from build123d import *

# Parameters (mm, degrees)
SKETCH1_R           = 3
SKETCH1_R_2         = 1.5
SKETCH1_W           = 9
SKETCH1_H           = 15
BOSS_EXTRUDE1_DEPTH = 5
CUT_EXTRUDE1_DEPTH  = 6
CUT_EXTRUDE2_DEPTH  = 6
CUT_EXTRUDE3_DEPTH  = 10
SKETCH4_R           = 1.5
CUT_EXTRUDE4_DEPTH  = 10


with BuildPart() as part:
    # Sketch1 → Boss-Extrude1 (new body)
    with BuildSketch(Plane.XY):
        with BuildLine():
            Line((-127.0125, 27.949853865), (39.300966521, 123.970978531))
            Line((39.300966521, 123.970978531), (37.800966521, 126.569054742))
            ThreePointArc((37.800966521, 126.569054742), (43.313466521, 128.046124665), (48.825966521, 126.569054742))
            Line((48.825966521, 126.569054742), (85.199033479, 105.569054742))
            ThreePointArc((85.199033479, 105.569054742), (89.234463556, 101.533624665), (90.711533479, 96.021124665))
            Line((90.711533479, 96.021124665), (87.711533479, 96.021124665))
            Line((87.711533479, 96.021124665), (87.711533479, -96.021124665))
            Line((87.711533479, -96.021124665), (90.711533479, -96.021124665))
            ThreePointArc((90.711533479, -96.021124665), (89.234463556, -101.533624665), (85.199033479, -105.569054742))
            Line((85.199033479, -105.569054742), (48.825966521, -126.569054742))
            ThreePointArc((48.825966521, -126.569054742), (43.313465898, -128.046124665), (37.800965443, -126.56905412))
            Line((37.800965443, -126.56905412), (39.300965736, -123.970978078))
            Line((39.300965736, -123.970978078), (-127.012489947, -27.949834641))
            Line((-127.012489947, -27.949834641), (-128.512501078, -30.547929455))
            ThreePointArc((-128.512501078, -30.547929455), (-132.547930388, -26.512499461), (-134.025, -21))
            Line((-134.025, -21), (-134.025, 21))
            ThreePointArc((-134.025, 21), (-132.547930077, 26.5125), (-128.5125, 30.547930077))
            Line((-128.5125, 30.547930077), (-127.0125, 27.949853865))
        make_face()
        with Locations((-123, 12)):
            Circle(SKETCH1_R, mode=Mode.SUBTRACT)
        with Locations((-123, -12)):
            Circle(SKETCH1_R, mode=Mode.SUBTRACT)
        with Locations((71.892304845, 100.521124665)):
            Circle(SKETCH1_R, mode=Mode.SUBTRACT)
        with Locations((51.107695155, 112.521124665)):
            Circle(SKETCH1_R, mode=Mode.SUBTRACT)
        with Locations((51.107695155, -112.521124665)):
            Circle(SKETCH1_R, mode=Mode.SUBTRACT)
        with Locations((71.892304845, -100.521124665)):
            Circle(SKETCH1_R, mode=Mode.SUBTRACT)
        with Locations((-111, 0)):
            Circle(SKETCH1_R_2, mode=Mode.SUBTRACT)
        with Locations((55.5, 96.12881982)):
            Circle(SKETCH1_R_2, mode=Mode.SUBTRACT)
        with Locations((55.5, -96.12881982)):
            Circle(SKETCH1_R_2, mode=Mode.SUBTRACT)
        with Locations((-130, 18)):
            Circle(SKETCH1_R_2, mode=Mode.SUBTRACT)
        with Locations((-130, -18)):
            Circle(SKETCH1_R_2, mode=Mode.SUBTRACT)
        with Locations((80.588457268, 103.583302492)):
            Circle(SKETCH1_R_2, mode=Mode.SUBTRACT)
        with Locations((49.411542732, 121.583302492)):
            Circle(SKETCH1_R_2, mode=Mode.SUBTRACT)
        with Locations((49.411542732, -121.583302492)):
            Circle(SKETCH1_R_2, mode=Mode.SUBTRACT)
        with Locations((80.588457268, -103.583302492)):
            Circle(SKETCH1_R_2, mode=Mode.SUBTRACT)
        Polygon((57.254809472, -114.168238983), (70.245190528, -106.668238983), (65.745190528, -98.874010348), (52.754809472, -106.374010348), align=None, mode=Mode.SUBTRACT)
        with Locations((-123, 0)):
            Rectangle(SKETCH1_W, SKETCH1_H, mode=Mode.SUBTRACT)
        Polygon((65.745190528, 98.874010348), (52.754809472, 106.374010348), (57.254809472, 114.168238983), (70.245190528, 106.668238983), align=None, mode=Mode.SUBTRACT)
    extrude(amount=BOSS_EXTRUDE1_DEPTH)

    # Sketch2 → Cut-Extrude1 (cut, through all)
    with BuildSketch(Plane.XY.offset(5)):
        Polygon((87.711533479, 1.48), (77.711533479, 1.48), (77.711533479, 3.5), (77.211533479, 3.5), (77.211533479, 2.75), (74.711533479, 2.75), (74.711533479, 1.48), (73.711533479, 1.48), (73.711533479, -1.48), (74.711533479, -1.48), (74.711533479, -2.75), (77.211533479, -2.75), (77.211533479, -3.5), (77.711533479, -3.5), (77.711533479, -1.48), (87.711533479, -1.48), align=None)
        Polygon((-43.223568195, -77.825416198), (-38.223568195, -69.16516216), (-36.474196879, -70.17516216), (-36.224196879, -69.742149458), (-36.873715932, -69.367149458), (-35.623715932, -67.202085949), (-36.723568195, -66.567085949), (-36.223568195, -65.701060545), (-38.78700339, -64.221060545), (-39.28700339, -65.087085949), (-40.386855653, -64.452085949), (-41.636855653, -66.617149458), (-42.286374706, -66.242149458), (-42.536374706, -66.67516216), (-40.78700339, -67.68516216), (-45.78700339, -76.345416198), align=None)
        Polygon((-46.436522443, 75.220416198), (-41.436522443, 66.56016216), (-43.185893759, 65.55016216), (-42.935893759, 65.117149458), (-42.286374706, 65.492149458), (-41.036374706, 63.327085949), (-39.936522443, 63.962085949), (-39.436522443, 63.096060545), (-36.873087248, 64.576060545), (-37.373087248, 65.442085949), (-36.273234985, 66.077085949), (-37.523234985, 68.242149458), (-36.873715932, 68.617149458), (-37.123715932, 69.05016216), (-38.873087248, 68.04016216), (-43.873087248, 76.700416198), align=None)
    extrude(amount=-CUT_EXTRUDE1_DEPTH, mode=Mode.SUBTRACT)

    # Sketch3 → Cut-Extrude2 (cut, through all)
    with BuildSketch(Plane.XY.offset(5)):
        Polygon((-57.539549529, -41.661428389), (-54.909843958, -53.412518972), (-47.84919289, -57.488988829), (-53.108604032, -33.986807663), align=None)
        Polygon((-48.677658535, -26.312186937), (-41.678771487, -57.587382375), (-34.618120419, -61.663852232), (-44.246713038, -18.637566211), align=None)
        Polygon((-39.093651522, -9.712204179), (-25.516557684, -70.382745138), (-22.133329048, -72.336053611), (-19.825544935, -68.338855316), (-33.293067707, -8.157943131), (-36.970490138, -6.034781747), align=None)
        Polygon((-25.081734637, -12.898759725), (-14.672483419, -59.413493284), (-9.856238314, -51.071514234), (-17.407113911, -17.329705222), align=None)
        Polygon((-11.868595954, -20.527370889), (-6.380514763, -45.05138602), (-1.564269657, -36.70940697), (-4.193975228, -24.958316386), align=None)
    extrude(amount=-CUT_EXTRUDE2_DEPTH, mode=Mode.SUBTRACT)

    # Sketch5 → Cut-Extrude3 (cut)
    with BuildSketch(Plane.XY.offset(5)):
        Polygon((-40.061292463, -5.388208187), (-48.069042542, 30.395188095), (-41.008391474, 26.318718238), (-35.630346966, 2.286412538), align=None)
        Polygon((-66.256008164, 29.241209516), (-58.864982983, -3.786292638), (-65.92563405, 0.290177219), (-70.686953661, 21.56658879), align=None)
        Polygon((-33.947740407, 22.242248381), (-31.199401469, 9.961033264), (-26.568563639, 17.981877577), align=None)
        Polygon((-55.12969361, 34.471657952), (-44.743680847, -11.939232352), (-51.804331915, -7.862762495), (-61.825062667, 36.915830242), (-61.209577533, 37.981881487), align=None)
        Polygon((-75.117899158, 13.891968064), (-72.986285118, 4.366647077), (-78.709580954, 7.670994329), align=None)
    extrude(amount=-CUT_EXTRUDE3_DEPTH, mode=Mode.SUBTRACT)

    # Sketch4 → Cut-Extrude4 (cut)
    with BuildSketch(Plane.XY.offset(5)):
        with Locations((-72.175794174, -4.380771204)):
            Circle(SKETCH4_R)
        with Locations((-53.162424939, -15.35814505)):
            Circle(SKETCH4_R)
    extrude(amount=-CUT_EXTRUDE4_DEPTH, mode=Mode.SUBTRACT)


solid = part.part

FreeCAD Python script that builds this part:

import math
import FreeCAD as App
import Part
import Sketcher

V = App.Vector
Q = App.Units.Quantity

doc = App.newDocument("Part")
body = doc.addObject("PartDesign::Body", "Body")

sketch1 = body.newObject("Sketcher::SketchObject", "Sketch")
sketch1.AttachmentSupport = (doc.getObject("XY_Plane"), [""])
sketch1.MapMode = "FlatFace"
sketch1.addGeometry(Part.LineSegment(V(39.300967, 123.970979, 0), V(-127.0125, 27.949854, 0)), False)
sketch1.addGeometry(Part.LineSegment(V(-127.0125, 27.949854, 0), V(-128.5125, 30.54793, 0)), False)
sketch1.addGeometry(Part.ArcOfCircle(Part.Circle(V(-123, 21, 0), V(0, 0, 1), 11.025), math.radians(120), math.radians(180)), False)
sketch1.addGeometry(Part.LineSegment(V(-134.025, 21, 0), V(-134.025, -21, 0)), False)
sketch1.addGeometry(Part.ArcOfCircle(Part.Circle(V(-123, -21, 0), V(0, 0, 1), 11.025), math.radians(180), math.radians(239.999994)), False)
sketch1.addGeometry(Part.LineSegment(V(-128.512501, -30.547929, 0), V(-127.01249, -27.949835, 0)), False)
sketch1.addGeometry(Part.LineSegment(V(-127.01249, -27.949835, 0), V(39.300966, -123.970978, 0)), False)
sketch1.addGeometry(Part.LineSegment(V(39.300966, -123.970978, 0), V(37.800965, -126.569054, 0)), False)
sketch1.addGeometry(Part.ArcOfCircle(Part.Circle(V(43.313467, -117.021125, 0), V(0, 0, 1), 11.025), math.radians(-120.000006), math.radians(-60)), False)
sketch1.addGeometry(Part.LineSegment(V(48.825967, -126.569055, 0), V(85.199033, -105.569055, 0)), False)
sketch1.addGeometry(Part.ArcOfCircle(Part.Circle(V(79.686533, -96.021125, 0), V(0, 0, 1), 11.025), math.radians(-60), math.radians(0)), False)
sketch1.addGeometry(Part.LineSegment(V(90.711533, -96.021125, 0), V(87.711533, -96.021125, 0)), False)
sketch1.addGeometry(Part.LineSegment(V(87.711533, -96.021125, 0), V(87.711533, 96.021125, 0)), False)
sketch1.addGeometry(Part.LineSegment(V(87.711533, 96.021125, 0), V(90.711533, 96.021125, 0)), False)
sketch1.addGeometry(Part.ArcOfCircle(Part.Circle(V(79.686533, 96.021125, 0), V(0, 0, 1), 11.025), math.radians(0), math.radians(60)), False)
sketch1.addGeometry(Part.LineSegment(V(85.199033, 105.569055, 0), V(48.825967, 126.569055, 0)), False)
sketch1.addGeometry(Part.ArcOfCircle(Part.Circle(V(43.313467, 117.021125, 0), V(0, 0, 1), 11.025), math.radians(60), math.radians(120)), False)
sketch1.addGeometry(Part.LineSegment(V(37.800967, 126.569055, 0), V(39.300967, 123.970979, 0)), False)
sketch1.addGeometry(Part.Circle(V(80.588457, -103.583302, 0), V(0, 0, 1), 1.5), False)
sketch1.addGeometry(Part.Circle(V(71.892305, -100.521125, 0), V(0, 0, 1), 3), False)
sketch1.addGeometry(Part.LineSegment(V(57.254809, -114.168239, 0), V(52.754809, -106.37401, 0)), False)
sketch1.addGeometry(Part.LineSegment(V(52.754809, -106.37401, 0), V(65.745191, -98.87401, 0)), False)
sketch1.addGeometry(Part.LineSegment(V(65.745191, -98.87401, 0), V(70.245191, -106.668239, 0)), False)
sketch1.addGeometry(Part.LineSegment(V(70.245191, -106.668239, 0), V(57.254809, -114.168239, 0)), False)
sketch1.addGeometry(Part.Circle(V(55.5, -96.12882, 0), V(0, 0, 1), 1.5), False)
sketch1.addGeometry(Part.Circle(V(49.411543, -121.583302, 0), V(0, 0, 1), 1.5), False)
sketch1.addGeometry(Part.Circle(V(51.107695, -112.521125, 0), V(0, 0, 1), 3), False)
sketch1.addGeometry(Part.Circle(V(-130, -18, 0), V(0, 0, 1), 1.5), False)
sketch1.addGeometry(Part.Circle(V(-111, 0, 0), V(0, 0, 1), 1.5), False)
sketch1.addGeometry(Part.Circle(V(-123, -12, 0), V(0, 0, 1), 3), False)
sketch1.addGeometry(Part.LineSegment(V(-127.5, -7.5, 0), V(-127.5, 7.5, 0)), False)
sketch1.addGeometry(Part.LineSegment(V(-127.5, 7.5, 0), V(-118.5, 7.5, 0)), False)
sketch1.addGeometry(Part.LineSegment(V(-118.5, 7.5, 0), V(-118.5, -7.5, 0)), False)
sketch1.addGeometry(Part.LineSegment(V(-118.5, -7.5, 0), V(-127.5, -7.5, 0)), False)
sketch1.addGeometry(Part.Circle(V(80.588457, 103.583302, 0), V(0, 0, 1), 1.5), False)
sketch1.addGeometry(Part.Circle(V(71.892305, 100.521125, 0), V(0, 0, 1), 3), False)
sketch1.addGeometry(Part.Circle(V(55.5, 96.12882, 0), V(0, 0, 1), 1.5), False)
sketch1.addGeometry(Part.LineSegment(V(65.745191, 98.87401, 0), V(52.754809, 106.37401, 0)), False)
sketch1.addGeometry(Part.LineSegment(V(52.754809, 106.37401, 0), V(57.254809, 114.168239, 0)), False)
sketch1.addGeometry(Part.LineSegment(V(57.254809, 114.168239, 0), V(70.245191, 106.668239, 0)), False)
sketch1.addGeometry(Part.LineSegment(V(70.245191, 106.668239, 0), V(65.745191, 98.87401, 0)), False)
sketch1.addGeometry(Part.Circle(V(51.107695, 112.521125, 0), V(0, 0, 1), 3), False)
sketch1.addGeometry(Part.Circle(V(49.411543, 121.583302, 0), V(0, 0, 1), 1.5), False)
sketch1.addGeometry(Part.Circle(V(-123, 12, 0), V(0, 0, 1), 3), False)
sketch1.addGeometry(Part.Circle(V(-130, 18, 0), V(0, 0, 1), 1.5), False)
sketch1.addConstraint(Sketcher.Constraint("Coincident", 0, 2, 1, 1))
sketch1.addConstraint(Sketcher.Constraint("Coincident", 1, 2, 2, 1))
sketch1.addConstraint(Sketcher.Constraint("Coincident", 2, 2, 3, 1))
sketch1.addConstraint(Sketcher.Constraint("Coincident", 3, 2, 4, 1))
sketch1.addConstraint(Sketcher.Constraint("Coincident", 4, 2, 5, 1))
sketch1.addConstraint(Sketcher.Constraint("Coincident", 5, 2, 6, 1))
sketch1.addConstraint(Sketcher.Constraint("Coincident", 6, 2, 7, 1))
sketch1.addConstraint(Sketcher.Constraint("Coincident", 7, 2, 8, 1))
sketch1.addConstraint(Sketcher.Constraint("Coincident", 8, 2, 9, 1))
sketch1.addConstraint(Sketcher.Constraint("Coincident", 9, 2, 10, 1))
sketch1.addConstraint(Sketcher.Constraint("Coincident", 10, 2, 11, 1))
sketch1.addConstraint(Sketcher.Constraint("Coincident", 11, 2, 12, 1))
sketch1.addConstraint(Sketcher.Constraint("Coincident", 12, 2, 13, 1))
sketch1.addConstraint(Sketcher.Constraint("Coincident", 13, 2, 14, 1))
sketch1.addConstraint(Sketcher.Constraint("Coincident", 14, 2, 15, 1))
sketch1.addConstraint(Sketcher.Constraint("Coincident", 15, 2, 16, 1))
sketch1.addConstraint(Sketcher.Constraint("Coincident", 16, 2, 17, 1))
sketch1.addConstraint(Sketcher.Constraint("Coincident", 17, 2, 0, 1))
sketch1.addConstraint(Sketcher.Constraint("Coincident", 20, 2, 21, 1))
sketch1.addConstraint(Sketcher.Constraint("Coincident", 21, 2, 22, 1))
sketch1.addConstraint(Sketcher.Constraint("Coincident", 22, 2, 23, 1))
sketch1.addConstraint(Sketcher.Constraint("Coincident", 23, 2, 20, 1))
sketch1.addConstraint(Sketcher.Constraint("Coincident", 30, 2, 31, 1))
sketch1.addConstraint(Sketcher.Constraint("Coincident", 31, 2, 32, 1))
sketch1.addConstraint(Sketcher.Constraint("Coincident", 32, 2, 33, 1))
sketch1.addConstraint(Sketcher.Constraint("Coincident", 33, 2, 30, 1))
sketch1.addConstraint(Sketcher.Constraint("Coincident", 37, 2, 38, 1))
sketch1.addConstraint(Sketcher.Constraint("Coincident", 38, 2, 39, 1))
sketch1.addConstraint(Sketcher.Constraint("Coincident", 39, 2, 40, 1))
sketch1.addConstraint(Sketcher.Constraint("Coincident", 40, 2, 37, 1))
sketch1.addConstraint(Sketcher.Constraint("Vertical", 3))
sketch1.addConstraint(Sketcher.Constraint("Horizontal", 11))
sketch1.addConstraint(Sketcher.Constraint("Vertical", 12))
sketch1.addConstraint(Sketcher.Constraint("Horizontal", 13))
sketch1.addConstraint(Sketcher.Constraint("Vertical", 30))
sketch1.addConstraint(Sketcher.Constraint("Horizontal", 31))
sketch1.addConstraint(Sketcher.Constraint("Vertical", 32))
sketch1.addConstraint(Sketcher.Constraint("Horizontal", 33))
sketch1.addConstraint(Sketcher.Constraint("PointOnObject", 28, 3, -1))
sketch1.addConstraint(Sketcher.Constraint("Diameter", 18, 3.0))
sketch1.addConstraint(Sketcher.Constraint("Diameter", 19, 6.0))
sketch1.addConstraint(Sketcher.Constraint("Diameter", 24, 3.0))
sketch1.addConstraint(Sketcher.Constraint("Diameter", 25, 3.0))
sketch1.addConstraint(Sketcher.Constraint("Diameter", 26, 6.0))
sketch1.addConstraint(Sketcher.Constraint("Diameter", 27, 3.0))
sketch1.addConstraint(Sketcher.Constraint("Diameter", 28, 3.0))
sketch1.addConstraint(Sketcher.Constraint("Diameter", 29, 6.0))
sketch1.addConstraint(Sketcher.Constraint("Diameter", 34, 3.0))
sketch1.addConstraint(Sketcher.Constraint("Diameter", 35, 6.0))
sketch1.addConstraint(Sketcher.Constraint("Diameter", 36, 3.0))
sketch1.addConstraint(Sketcher.Constraint("Diameter", 41, 6.0))
sketch1.addConstraint(Sketcher.Constraint("Diameter", 42, 3.0))
sketch1.addConstraint(Sketcher.Constraint("Diameter", 43, 6.0))
sketch1.addConstraint(Sketcher.Constraint("Diameter", 44, 3.0))
sketch1.addConstraint(Sketcher.Constraint("DistanceX", 11, 2, 11, 1, 3.0))
sketch1.addConstraint(Sketcher.Constraint("DistanceX", 13, 1, 13, 2, 3.0))
sketch1.addConstraint(Sketcher.Constraint("DistanceX", 31, 1, 31, 2, 9.0))
sketch1.addConstraint(Sketcher.Constraint("DistanceY", 3, 2, 3, 1, 42.0))
sketch1.addConstraint(Sketcher.Constraint("DistanceY", 30, 1, 30, 2, 15.0))
sketch1.addConstraint(Sketcher.Constraint("Distance", 1, 3.0))
sketch1.addConstraint(Sketcher.Constraint("Distance", 7, 3.0))
sketch1.addConstraint(Sketcher.Constraint("Distance", 9, 42.0))
sketch1.addConstraint(Sketcher.Constraint("Distance", 15, 42.0))
sketch1.addConstraint(Sketcher.Constraint("Distance", 17, 3.0))
sketch1.addConstraint(Sketcher.Constraint("Distance", 20, 9.0))
sketch1.addConstraint(Sketcher.Constraint("Distance", 21, 15.0))
sketch1.addConstraint(Sketcher.Constraint("Distance", 22, 9.0))
sketch1.addConstraint(Sketcher.Constraint("Distance", 23, 15.0))
sketch1.addConstraint(Sketcher.Constraint("Distance", 37, 15.0))
sketch1.addConstraint(Sketcher.Constraint("Distance", 38, 9.0))
sketch1.addConstraint(Sketcher.Constraint("Distance", 39, 15.0))
sketch1.addConstraint(Sketcher.Constraint("Distance", 40, 9.0))
sketch1.addConstraint(Sketcher.Constraint("DistanceX", 2, 3, -1, 1, 123.0))
sketch1.addConstraint(Sketcher.Constraint("DistanceY", -1, 1, 2, 3, 21.0))
sketch1.addConstraint(Sketcher.Constraint("DistanceX", 4, 3, -1, 1, 123.0))
sketch1.addConstraint(Sketcher.Constraint("DistanceY", 4, 3, -1, 1, 21.0))
sketch1.addConstraint(Sketcher.Constraint("DistanceX", 27, 3, -1, 1, 130.0))
sketch1.addConstraint(Sketcher.Constraint("DistanceY", 27, 3, -1, 1, 18.0))
sketch1.addConstraint(Sketcher.Constraint("DistanceX", 28, 3, -1, 1, 111.0))
sketch1.addConstraint(Sketcher.Constraint("DistanceX", 29, 3, -1, 1, 123.0))
sketch1.addConstraint(Sketcher.Constraint("DistanceY", 29, 3, -1, 1, 12.0))
sketch1.addConstraint(Sketcher.Constraint("DistanceX", 43, 3, -1, 1, 123.0))
sketch1.addConstraint(Sketcher.Constraint("DistanceY", -1, 1, 43, 3, 12.0))
sketch1.addConstraint(Sketcher.Constraint("DistanceX", 44, 3, -1, 1, 130.0))
sketch1.addConstraint(Sketcher.Constraint("DistanceY", -1, 1, 44, 3, 18.0))
sketch1.addConstraint(Sketcher.Constraint("DistanceY", -1, 1, 2, 2, 21.0))
sketch1.addConstraint(Sketcher.Constraint("Radius", 2, 11.025))
sketch1.addConstraint(Sketcher.Constraint("Radius", 8, 11.025))
sketch1.addConstraint(Sketcher.Constraint("Radius", 10, 11.025))
sketch1.addConstraint(Sketcher.Constraint("Radius", 14, 11.025))
sketch1.addConstraint(Sketcher.Constraint("Radius", 16, 11.025))
sketch1.addConstraint(Sketcher.Constraint("DistanceY", 8, 3, 10, 3, 21.0))
sketch1.addConstraint(Sketcher.Constraint("DistanceY", 14, 3, 16, 3, 21.0))
sketch1.addConstraint(Sketcher.Constraint("DistanceY", 25, 3, 18, 3, 18.0))
sketch1.addConstraint(Sketcher.Constraint("DistanceY", 26, 3, 19, 3, 12.0))
sketch1.addConstraint(Sketcher.Constraint("DistanceY", 35, 3, 41, 3, 12.0))
sketch1.addConstraint(Sketcher.Constraint("DistanceY", 34, 3, 42, 3, 18.0))
sketch1.addConstraint(Sketcher.Constraint("DistanceX", -1, 1, 24, 3, 55.5))
sketch1.addConstraint(Sketcher.Constraint("DistanceX", -1, 1, 36, 3, 55.5))
sketch1.addConstraint(Sketcher.Constraint("DistanceX", 30, 2, -1, 1, 127.5))
sketch1.addConstraint(Sketcher.Constraint("DistanceY", -1, 1, 30, 2, 7.5))
sketch1.addConstraint(Sketcher.Constraint("DistanceY", 19, 3, 10, 3, 4.5))
sketch1.addConstraint(Sketcher.Constraint("DistanceY", 14, 3, 35, 3, 4.5))
sketch1.addConstraint(Sketcher.Constraint("DistanceX", 1, 2, 0, 2, 1.5))
sketch1.addConstraint(Sketcher.Constraint("DistanceX", 7, 2, 6, 2, 1.5))
sketch1.addConstraint(Sketcher.Constraint("DistanceY", 19, 3, 10, 2, 4.5))
sketch1.addConstraint(Sketcher.Constraint("DistanceY", 12, 2, 35, 3, 4.5))
sketch1.addConstraint(Sketcher.Constraint("DistanceX", 16, 2, 17, 2, 1.5))
sketch1.addConstraint(Sketcher.Constraint("DistanceY", 20, 2, 21, 2, 7.5))
sketch1.addConstraint(Sketcher.Constraint("DistanceX", 21, 2, 22, 2, 4.5))
sketch1.addConstraint(Sketcher.Constraint("DistanceX", 37, 2, 38, 2, 4.5))
sketch1.addConstraint(Sketcher.Constraint("DistanceY", 39, 2, 38, 2, 7.5))
sketch1.addConstraint(Sketcher.Constraint("DistanceX", 6, 2, 8, 2, 9.525001))
sketch1.addConstraint(Sketcher.Constraint("DistanceX", 16, 2, 15, 2, 11.025))
sketch1.addConstraint(Sketcher.Constraint("DistanceY", 12, 1, 12, 2, 192.042249))
sketch1.addConstraint(Sketcher.Constraint("DistanceX", 0, 2, -1, 1, 127.0125))
sketch1.addConstraint(Sketcher.Constraint("DistanceX", 4, 2, -1, 1, 128.512501))
sketch1.addConstraint(Sketcher.Constraint("DistanceX", 6, 2, 8, 3, 4.012501))
sketch1.addConstraint(Sketcher.Constraint("DistanceX", 10, 3, 9, 2, 5.5125))
sketch1.addConstraint(Sketcher.Constraint("DistanceX", 14, 2, 12, 2, 2.5125))
sketch1.addConstraint(Sketcher.Constraint("DistanceX", 16, 3, 15, 2, 5.5125))
sketch1.addConstraint(Sketcher.Constraint("Distance", 0, 192.042249))
sketch1.addConstraint(Sketcher.Constraint("Distance", 5, 3.000022))
sketch1.addConstraint(Sketcher.Constraint("Distance", 6, 192.042249))
sketch1.addConstraint(Sketcher.Constraint("DistanceY", 24, 3, -1, 1, 96.12882))
sketch1.addConstraint(Sketcher.Constraint("DistanceY", -1, 1, 36, 3, 96.12882))
sketch1.addConstraint(Sketcher.Constraint("DistanceX", 5, 2, -1, 1, 127.01249))
sketch1.addConstraint(Sketcher.Constraint("DistanceX", -1, 1, 20, 2, 52.754809))
sketch1.addConstraint(Sketcher.Constraint("DistanceY", 20, 2, -1, 1, 106.37401))
sketch1.addConstraint(Sketcher.Constraint("DistanceX", -1, 1, 37, 2, 52.754809))
sketch1.addConstraint(Sketcher.Constraint("DistanceY", -1, 1, 37, 2, 106.37401))
sketch1.addConstraint(Sketcher.Constraint("DistanceX", 8, 3, 18, 3, 37.274991))
sketch1.addConstraint(Sketcher.Constraint("DistanceX", 19, 3, 10, 3, 7.794229))
sketch1.addConstraint(Sketcher.Constraint("DistanceX", 25, 3, 10, 3, 30.274991))
sketch1.addConstraint(Sketcher.Constraint("DistanceX", 8, 3, 26, 3, 7.794229))
sketch1.addConstraint(Sketcher.Constraint("DistanceX", 16, 3, 34, 3, 37.274991))
sketch1.addConstraint(Sketcher.Constraint("DistanceX", 35, 3, 14, 3, 7.794229))
sketch1.addConstraint(Sketcher.Constraint("DistanceX", 16, 3, 41, 3, 7.794229))
sketch1.addConstraint(Sketcher.Constraint("DistanceY", 7, 2, 25, 3, 4.985752))
sketch1.addConstraint(Sketcher.Constraint("DistanceY", -1, 1, 34, 3, 103.583302))
sketch1.addConstraint(Sketcher.Constraint("DistanceX", -1, 1, 42, 3, 49.411543))
pad1 = body.newObject("PartDesign::Pad", "Pad")
pad1.Profile = sketch1
pad1.Length = 5

sketch2 = body.newObject("Sketcher::SketchObject", "Sketch001")
sketch2.AttachmentSupport = (doc.getObject("XY_Plane"), [""])
sketch2.MapMode = "FlatFace"
sketch2.AttachmentOffset = App.Placement(V(0, 0, 5), App.Rotation())
sketch2.addGeometry(Part.LineSegment(V(87.711533, 1.48, 0), V(77.711533, 1.48, 0)), False)
sketch2.addGeometry(Part.LineSegment(V(77.711533, 1.48, 0), V(77.711533, 3.5, 0)), False)
sketch2.addGeometry(Part.LineSegment(V(77.711533, 3.5, 0), V(77.211533, 3.5, 0)), False)
sketch2.addGeometry(Part.LineSegment(V(77.211533, 3.5, 0), V(77.211533, 2.75, 0)), False)
sketch2.addGeometry(Part.LineSegment(V(77.211533, 2.75, 0), V(74.711533, 2.75, 0)), False)
sketch2.addGeometry(Part.LineSegment(V(74.711533, 2.75, 0), V(74.711533, 1.48, 0)), False)
sketch2.addGeometry(Part.LineSegment(V(74.711533, 1.48, 0), V(73.711533, 1.48, 0)), False)
sketch2.addGeometry(Part.LineSegment(V(73.711533, 1.48, 0), V(73.711533, -1.48, 0)), False)
sketch2.addGeometry(Part.LineSegment(V(73.711533, -1.48, 0), V(74.711533, -1.48, 0)), False)
sketch2.addGeometry(Part.LineSegment(V(74.711533, -1.48, 0), V(74.711533, -2.75, 0)), False)
sketch2.addGeometry(Part.LineSegment(V(74.711533, -2.75, 0), V(77.211533, -2.75, 0)), False)
sketch2.addGeometry(Part.LineSegment(V(77.211533, -2.75, 0), V(77.211533, -3.5, 0)), False)
sketch2.addGeometry(Part.LineSegment(V(77.211533, -3.5, 0), V(77.711533, -3.5, 0)), False)
sketch2.addGeometry(Part.LineSegment(V(77.711533, -3.5, 0), V(77.711533, -1.48, 0)), False)
sketch2.addGeometry(Part.LineSegment(V(77.711533, -1.48, 0), V(87.711533, -1.48, 0)), False)
sketch2.addGeometry(Part.LineSegment(V(87.711533, -1.48, 0), V(87.711533, 1.48, 0)), False)
sketch2.addGeometry(Part.LineSegment(V(-43.223568, -77.825416, 0), V(-38.223568, -69.165162, 0)), False)
sketch2.addGeometry(Part.LineSegment(V(-38.223568, -69.165162, 0), V(-36.474197, -70.175162, 0)), False)
sketch2.addGeometry(Part.LineSegment(V(-36.474197, -70.175162, 0), V(-36.224197, -69.742149, 0)), False)
sketch2.addGeometry(Part.LineSegment(V(-36.224197, -69.742149, 0), V(-36.873716, -69.367149, 0)), False)
sketch2.addGeometry(Part.LineSegment(V(-36.873716, -69.367149, 0), V(-35.623716, -67.202086, 0)), False)
sketch2.addGeometry(Part.LineSegment(V(-35.623716, -67.202086, 0), V(-36.723568, -66.567086, 0)), False)
sketch2.addGeometry(Part.LineSegment(V(-36.723568, -66.567086, 0), V(-36.223568, -65.701061, 0)), False)
sketch2.addGeometry(Part.LineSegment(V(-36.223568, -65.701061, 0), V(-38.787003, -64.221061, 0)), False)
sketch2.addGeometry(Part.LineSegment(V(-38.787003, -64.221061, 0), V(-39.287003, -65.087086, 0)), False)
sketch2.addGeometry(Part.LineSegment(V(-39.287003, -65.087086, 0), V(-40.386856, -64.452086, 0)), False)
sketch2.addGeometry(Part.LineSegment(V(-40.386856, -64.452086, 0), V(-41.636856, -66.617149, 0)), False)
sketch2.addGeometry(Part.LineSegment(V(-41.636856, -66.617149, 0), V(-42.286375, -66.242149, 0)), False)
sketch2.addGeometry(Part.LineSegment(V(-42.286375, -66.242149, 0), V(-42.536375, -66.675162, 0)), False)
sketch2.addGeometry(Part.LineSegment(V(-42.536375, -66.675162, 0), V(-40.787003, -67.685162, 0)), False)
sketch2.addGeometry(Part.LineSegment(V(-40.787003, -67.685162, 0), V(-45.787003, -76.345416, 0)), False)
sketch2.addGeometry(Part.LineSegment(V(-45.787003, -76.345416, 0), V(-43.223568, -77.825416, 0)), False)
sketch2.addGeometry(Part.LineSegment(V(-46.436522, 75.220416, 0), V(-41.436522, 66.560162, 0)), False)
sketch2.addGeometry(Part.LineSegment(V(-41.436522, 66.560162, 0), V(-43.185894, 65.550162, 0)), False)
sketch2.addGeometry(Part.LineSegment(V(-43.185894, 65.550162, 0), V(-42.935894, 65.117149, 0)), False)
sketch2.addGeometry(Part.LineSegment(V(-42.935894, 65.117149, 0), V(-42.286375, 65.492149, 0)), False)
sketch2.addGeometry(Part.LineSegment(V(-42.286375, 65.492149, 0), V(-41.036375, 63.327086, 0)), False)
sketch2.addGeometry(Part.LineSegment(V(-41.036375, 63.327086, 0), V(-39.936522, 63.962086, 0)), False)
sketch2.addGeometry(Part.LineSegment(V(-39.936522, 63.962086, 0), V(-39.436522, 63.096061, 0)), False)
sketch2.addGeometry(Part.LineSegment(V(-39.436522, 63.096061, 0), V(-36.873087, 64.576061, 0)), False)
sketch2.addGeometry(Part.LineSegment(V(-36.873087, 64.576061, 0), V(-37.373087, 65.442086, 0)), False)
sketch2.addGeometry(Part.LineSegment(V(-37.373087, 65.442086, 0), V(-36.273235, 66.077086, 0)), False)
sketch2.addGeometry(Part.LineSegment(V(-36.273235, 66.077086, 0), V(-37.523235, 68.242149, 0)), False)
sketch2.addGeometry(Part.LineSegment(V(-37.523235, 68.242149, 0), V(-36.873716, 68.617149, 0)), False)
sketch2.addGeometry(Part.LineSegment(V(-36.873716, 68.617149, 0), V(-37.123716, 69.050162, 0)), False)
sketch2.addGeometry(Part.LineSegment(V(-37.123716, 69.050162, 0), V(-38.873087, 68.040162, 0)), False)
sketch2.addGeometry(Part.LineSegment(V(-38.873087, 68.040162, 0), V(-43.873087, 76.700416, 0)), False)
sketch2.addGeometry(Part.LineSegment(V(-43.873087, 76.700416, 0), V(-46.436522, 75.220416, 0)), False)
sketch2.addConstraint(Sketcher.Constraint("Coincident", 0, 2, 1, 1))
sketch2.addConstraint(Sketcher.Constraint("Coincident", 1, 2, 2, 1))
sketch2.addConstraint(Sketcher.Constraint("Coincident", 2, 2, 3, 1))
sketch2.addConstraint(Sketcher.Constraint("Coincident", 3, 2, 4, 1))
sketch2.addConstraint(Sketcher.Constraint("Coincident", 4, 2, 5, 1))
sketch2.addConstraint(Sketcher.Constraint("Coincident", 5, 2, 6, 1))
sketch2.addConstraint(Sketcher.Constraint("Coincident", 6, 2, 7, 1))
sketch2.addConstraint(Sketcher.Constraint("Coincident", 7, 2, 8, 1))
sketch2.addConstraint(Sketcher.Constraint("Coincident", 8, 2, 9, 1))
sketch2.addConstraint(Sketcher.Constraint("Coincident", 9, 2, 10, 1))
sketch2.addConstraint(Sketcher.Constraint("Coincident", 10, 2, 11, 1))
sketch2.addConstraint(Sketcher.Constraint("Coincident", 11, 2, 12, 1))
sketch2.addConstraint(Sketcher.Constraint("Coincident", 12, 2, 13, 1))
sketch2.addConstraint(Sketcher.Constraint("Coincident", 13, 2, 14, 1))
sketch2.addConstraint(Sketcher.Constraint("Coincident", 14, 2, 15, 1))
sketch2.addConstraint(Sketcher.Constraint("Coincident", 15, 2, 0, 1))
sketch2.addConstraint(Sketcher.Constraint("Coincident", 16, 2, 17, 1))
sketch2.addConstraint(Sketcher.Constraint("Coincident", 17, 2, 18, 1))
sketch2.addConstraint(Sketcher.Constraint("Coincident", 18, 2, 19, 1))
sketch2.addConstraint(Sketcher.Constraint("Coincident", 19, 2, 20, 1))
sketch2.addConstraint(Sketcher.Constraint("Coincident", 20, 2, 21, 1))
sketch2.addConstraint(Sketcher.Constraint("Coincident", 21, 2, 22, 1))
sketch2.addConstraint(Sketcher.Constraint("Coincident", 22, 2, 23, 1))
sketch2.addConstraint(Sketcher.Constraint("Coincident", 23, 2, 24, 1))
sketch2.addConstraint(Sketcher.Constraint("Coincident", 24, 2, 25, 1))
sketch2.addConstraint(Sketcher.Constraint("Coincident", 25, 2, 26, 1))
sketch2.addConstraint(Sketcher.Constraint("Coincident", 26, 2, 27, 1))
sketch2.addConstraint(Sketcher.Constraint("Coincident", 27, 2, 28, 1))
sketch2.addConstraint(Sketcher.Constraint("Coincident", 28, 2, 29, 1))
sketch2.addConstraint(Sketcher.Constraint("Coincident", 29, 2, 30, 1))
sketch2.addConstraint(Sketcher.Constraint("Coincident", 30, 2, 31, 1))
sketch2.addConstraint(Sketcher.Constraint("Coincident", 31, 2, 16, 1))
sketch2.addConstraint(Sketcher.Constraint("Coincident", 32, 2, 33, 1))
sketch2.addConstraint(Sketcher.Constraint("Coincident", 33, 2, 34, 1))
sketch2.addConstraint(Sketcher.Constraint("Coincident", 34, 2, 35, 1))
sketch2.addConstraint(Sketcher.Constraint("Coincident", 35, 2, 36, 1))
sketch2.addConstraint(Sketcher.Constraint("Coincident", 36, 2, 37, 1))
sketch2.addConstraint(Sketcher.Constraint("Coincident", 37, 2, 38, 1))
sketch2.addConstraint(Sketcher.Constraint("Coincident", 38, 2, 39, 1))
sketch2.addConstraint(Sketcher.Constraint("Coincident", 39, 2, 40, 1))
sketch2.addConstraint(Sketcher.Constraint("Coincident", 40, 2, 41, 1))
sketch2.addConstraint(Sketcher.Constraint("Coincident", 41, 2, 42, 1))
sketch2.addConstraint(Sketcher.Constraint("Coincident", 42, 2, 43, 1))
sketch2.addConstraint(Sketcher.Constraint("Coincident", 43, 2, 44, 1))
sketch2.addConstraint(Sketcher.Constraint("Coincident", 44, 2, 45, 1))
sketch2.addConstraint(Sketcher.Constraint("Coincident", 45, 2, 46, 1))
sketch2.addConstraint(Sketcher.Constraint("Coincident", 46, 2, 47, 1))
sketch2.addConstraint(Sketcher.Constraint("Coincident", 47, 2, 32, 1))
sketch2.addConstraint(Sketcher.Constraint("Horizontal", 0))
sketch2.addConstraint(Sketcher.Constraint("Vertical", 1))
sketch2.addConstraint(Sketcher.Constraint("Horizontal", 2))
sketch2.addConstraint(Sketcher.Constraint("Vertical", 3))
sketch2.addConstraint(Sketcher.Constraint("Horizontal", 4))
sketch2.addConstraint(Sketcher.Constraint("Vertical", 5))
sketch2.addConstraint(Sketcher.Constraint("Horizontal", 6))
sketch2.addConstraint(Sketcher.Constraint("Vertical", 7))
sketch2.addConstraint(Sketcher.Constraint("Horizontal", 8))
sketch2.addConstraint(Sketcher.Constraint("Vertical", 9))
sketch2.addConstraint(Sketcher.Constraint("Horizontal", 10))
sketch2.addConstraint(Sketcher.Constraint("Vertical", 11))
sketch2.addConstraint(Sketcher.Constraint("Horizontal", 12))
sketch2.addConstraint(Sketcher.Constraint("Vertical", 13))
sketch2.addConstraint(Sketcher.Constraint("Horizontal", 14))
sketch2.addConstraint(Sketcher.Constraint("Vertical", 15))
sketch2.addConstraint(Sketcher.Constraint("Symmetric", 5, 2, 8, 2, -1))
sketch2.addConstraint(Sketcher.Constraint("Symmetric", 3, 2, 10, 2, -1))
sketch2.addConstraint(Sketcher.Constraint("Symmetric", 1, 2, 12, 2, -1))
sketch2.addConstraint(Sketcher.Constraint("Perpendicular", 16, 17))
sketch2.addConstraint(Sketcher.Constraint("Perpendicular", 17, 18))
sketch2.addConstraint(Sketcher.Constraint("Perpendicular", 18, 19))
sketch2.addConstraint(Sketcher.Constraint("Perpendicular", 19, 20))
sketch2.addConstraint(Sketcher.Constraint("Perpendicular", 20, 21))
sketch2.addConstraint(Sketcher.Constraint("Perpendicular", 21, 22))
sketch2.addConstraint(Sketcher.Constraint("Perpendicular", 22, 23))
sketch2.addConstraint(Sketcher.Constraint("Perpendicular", 23, 24))
sketch2.addConstraint(Sketcher.Constraint("Perpendicular", 24, 25))
sketch2.addConstraint(Sketcher.Constraint("Perpendicular", 25, 26))
sketch2.addConstraint(Sketcher.Constraint("Perpendicular", 26, 27))
sketch2.addConstraint(Sketcher.Constraint("Perpendicular", 27, 28))
sketch2.addConstraint(Sketcher.Constraint("Perpendicular", 28, 29))
sketch2.addConstraint(Sketcher.Constraint("Perpendicular", 29, 30))
sketch2.addConstraint(Sketcher.Constraint("Perpendicular", 30, 31))
sketch2.addConstraint(Sketcher.Constraint("Perpendicular", 32, 33))
sketch2.addConstraint(Sketcher.Constraint("Perpendicular", 33, 34))
sketch2.addConstraint(Sketcher.Constraint("Perpendicular", 34, 35))
sketch2.addConstraint(Sketcher.Constraint("Perpendicular", 35, 36))
sketch2.addConstraint(Sketcher.Constraint("Perpendicular", 36, 37))
sketch2.addConstraint(Sketcher.Constraint("Perpendicular", 37, 38))
sketch2.addConstraint(Sketcher.Constraint("Perpendicular", 38, 39))
sketch2.addConstraint(Sketcher.Constraint("Perpendicular", 39, 40))
sketch2.addConstraint(Sketcher.Constraint("Perpendicular", 40, 41))
sketch2.addConstraint(Sketcher.Constraint("Perpendicular", 41, 42))
sketch2.addConstraint(Sketcher.Constraint("Perpendicular", 42, 43))
sketch2.addConstraint(Sketcher.Constraint("Perpendicular", 43, 44))
sketch2.addConstraint(Sketcher.Constraint("Perpendicular", 44, 45))
sketch2.addConstraint(Sketcher.Constraint("Perpendicular", 45, 46))
sketch2.addConstraint(Sketcher.Constraint("Perpendicular", 46, 47))
sketch2.addConstraint(Sketcher.Constraint("Horizontal", 0, 2, 5, 2))
sketch2.addConstraint(Sketcher.Constraint("Horizontal", 8, 2, 13, 2))
sketch2.addConstraint(Sketcher.Constraint("Vertical", 27, 2, 35, 2))
sketch2.addConstraint(Sketcher.Constraint("Vertical", 19, 2, 43, 2))
sketch2.addConstraint(Sketcher.Constraint("Equal", 22, 24))
sketch2.addConstraint(Sketcher.Constraint("Equal", 21, 25))
sketch2.addConstraint(Sketcher.Constraint("Equal", 20, 26))
sketch2.addConstraint(Sketcher.Constraint("Equal", 19, 27))
sketch2.addConstraint(Sketcher.Constraint("Equal", 18, 28))
sketch2.addConstraint(Sketcher.Constraint("Equal", 17, 29))
sketch2.addConstraint(Sketcher.Constraint("Equal", 23, 31))
sketch2.addConstraint(Sketcher.Constraint("Equal", 30, 32))
sketch2.addConstraint(Sketcher.Constraint("Equal", 29, 33))
sketch2.addConstraint(Sketcher.Constraint("Equal", 28, 34))
sketch2.addConstraint(Sketcher.Constraint("Equal", 27, 35))
sketch2.addConstraint(Sketcher.Constraint("Equal", 26, 36))
sketch2.addConstraint(Sketcher.Constraint("Equal", 25, 37))
sketch2.addConstraint(Sketcher.Constraint("Equal", 24, 38))
sketch2.addConstraint(Sketcher.Constraint("Equal", 31, 39))
sketch2.addConstraint(Sketcher.Constraint("Equal", 38, 40))
sketch2.addConstraint(Sketcher.Constraint("Equal", 37, 41))
sketch2.addConstraint(Sketcher.Constraint("Equal", 36, 42))
sketch2.addConstraint(Sketcher.Constraint("Equal", 35, 43))
sketch2.addConstraint(Sketcher.Constraint("Equal", 34, 44))
sketch2.addConstraint(Sketcher.Constraint("Equal", 33, 45))
sketch2.addConstraint(Sketcher.Constraint("DistanceX", 0, 2, 0, 1, 10.0))
sketch2.addConstraint(Sketcher.Constraint("DistanceX", 6, 2, 6, 1, 1.0))
sketch2.addConstraint(Sketcher.Constraint("Angle", 16, Q("60 deg")))
sketch2.addConstraint(Sketcher.Constraint("Distance", 16, 10.0))
sketch2.addConstraint(Sketcher.Constraint("Distance", 22, 1.0))
sketch2.addConstraint(Sketcher.Constraint("DistanceX", 2, 2, 2, 1, 0.5))
sketch2.addConstraint(Sketcher.Constraint("DistanceX", 4, 2, 4, 1, 2.5))
sketch2.addConstraint(Sketcher.Constraint("DistanceX", 16, 2, 22, 2, 2.0))
sketch2.addConstraint(Sketcher.Constraint("Distance", 18, 0.5))
sketch2.addConstraint(Sketcher.Constraint("DistanceY", 1, 1, 1, 2, 2.02))
sketch2.addConstraint(Sketcher.Constraint("DistanceY", 3, 2, 3, 1, 0.75))
sketch2.addConstraint(Sketcher.Constraint("DistanceY", 7, 2, 7, 1, 2.96))
sketch2.addConstraint(Sketcher.Constraint("Distance", 17, 2.02))
sketch2.addConstraint(Sketcher.Constraint("Distance", 19, 0.75))
sketch2.addConstraint(Sketcher.Constraint("Distance", 23, 2.96))
sketch2.addConstraint(Sketcher.Constraint("DistanceX", 16, 2, 7, 2, 111.935102))
sketch2.addConstraint(Sketcher.Constraint("DistanceX", 16, 2, -1, 1, 38.223568))
sketch2.addConstraint(Sketcher.Constraint("DistanceY", 18, 2, -1, 1, 69.742149))
sketch2.addConstraint(Sketcher.Constraint("DistanceY", -1, 1, 34, 2, 65.117149))
pocket1 = body.newObject("PartDesign::Pocket", "Pocket")
pocket1.Profile = sketch2
pocket1.Type = "ThroughAll"

sketch3 = body.newObject("Sketcher::SketchObject", "Sketch002")
sketch3.AttachmentSupport = (doc.getObject("XY_Plane"), [""])
sketch3.MapMode = "FlatFace"
sketch3.AttachmentOffset = App.Placement(V(0, 0, 5), App.Rotation())
sketch3.addGeometry(Part.LineSegment(V(-57.53955, -41.661428, 0), V(-54.909844, -53.412519, 0)), False)
sketch3.addGeometry(Part.LineSegment(V(-54.909844, -53.412519, 0), V(-47.849193, -57.488989, 0)), False)
sketch3.addGeometry(Part.LineSegment(V(-47.849193, -57.488989, 0), V(-53.108604, -33.986808, 0)), False)
sketch3.addGeometry(Part.LineSegment(V(-53.108604, -33.986808, 0), V(-57.53955, -41.661428, 0)), False)
sketch3.addGeometry(Part.LineSegment(V(-48.677659, -26.312187, 0), V(-41.678771, -57.587382, 0)), False)
sketch3.addGeometry(Part.LineSegment(V(-41.678771, -57.587382, 0), V(-34.61812, -61.663852, 0)), False)
sketch3.addGeometry(Part.LineSegment(V(-34.61812, -61.663852, 0), V(-44.246713, -18.637566, 0)), False)
sketch3.addGeometry(Part.LineSegment(V(-44.246713, -18.637566, 0), V(-48.677659, -26.312187, 0)), False)
sketch3.addGeometry(Part.LineSegment(V(-39.093652, -9.712204, 0), V(-25.516558, -70.382745, 0)), False)
sketch3.addGeometry(Part.LineSegment(V(-25.516558, -70.382745, 0), V(-22.133329, -72.336054, 0)), False)
sketch3.addGeometry(Part.LineSegment(V(-22.133329, -72.336054, 0), V(-19.825545, -68.338855, 0)), False)
sketch3.addGeometry(Part.LineSegment(V(-19.825545, -68.338855, 0), V(-33.293068, -8.157943, 0)), False)
sketch3.addGeometry(Part.LineSegment(V(-33.293068, -8.157943, 0), V(-36.97049, -6.034782, 0)), False)
sketch3.addGeometry(Part.LineSegment(V(-36.97049, -6.034782, 0), V(-39.093652, -9.712204, 0)), False)
sketch3.addGeometry(Part.LineSegment(V(-25.081735, -12.89876, 0), V(-14.672483, -59.413493, 0)), False)
sketch3.addGeometry(Part.LineSegment(V(-14.672483, -59.413493, 0), V(-9.856238, -51.071514, 0)), False)
sketch3.addGeometry(Part.LineSegment(V(-9.856238, -51.071514, 0), V(-17.407114, -17.329705, 0)), False)
sketch3.addGeometry(Part.LineSegment(V(-17.407114, -17.329705, 0), V(-25.081735, -12.89876, 0)), False)
sketch3.addGeometry(Part.LineSegment(V(-11.868596, -20.527371, 0), V(-6.380515, -45.051386, 0)), False)
sketch3.addGeometry(Part.LineSegment(V(-6.380515, -45.051386, 0), V(-1.56427, -36.709407, 0)), False)
sketch3.addGeometry(Part.LineSegment(V(-1.56427, -36.709407, 0), V(-4.193975, -24.958316, 0)), False)
sketch3.addGeometry(Part.LineSegment(V(-4.193975, -24.958316, 0), V(-11.868596, -20.527371, 0)), False)
sketch3.addConstraint(Sketcher.Constraint("Coincident", 0, 2, 1, 1))
sketch3.addConstraint(Sketcher.Constraint("Coincident", 1, 2, 2, 1))
sketch3.addConstraint(Sketcher.Constraint("Coincident", 2, 2, 3, 1))
sketch3.addConstraint(Sketcher.Constraint("Coincident", 3, 2, 0, 1))
sketch3.addConstraint(Sketcher.Constraint("Coincident", 4, 2, 5, 1))
sketch3.addConstraint(Sketcher.Constraint("Coincident", 5, 2, 6, 1))
sketch3.addConstraint(Sketcher.Constraint("Coincident", 6, 2, 7, 1))
sketch3.addConstraint(Sketcher.Constraint("Coincident", 7, 2, 4, 1))
sketch3.addConstraint(Sketcher.Constraint("Coincident", 8, 2, 9, 1))
sketch3.addConstraint(Sketcher.Constraint("Coincident", 9, 2, 10, 1))
sketch3.addConstraint(Sketcher.Constraint("Coincident", 10, 2, 11, 1))
sketch3.addConstraint(Sketcher.Constraint("Coincident", 11, 2, 12, 1))
sketch3.addConstraint(Sketcher.Constraint("Coincident", 12, 2, 13, 1))
sketch3.addConstraint(Sketcher.Constraint("Coincident", 13, 2, 8, 1))
sketch3.addConstraint(Sketcher.Constraint("Coincident", 14, 2, 15, 1))
sketch3.addConstraint(Sketcher.Constraint("Coincident", 15, 2, 16, 1))
sketch3.addConstraint(Sketcher.Constraint("Coincident", 16, 2, 17, 1))
sketch3.addConstraint(Sketcher.Constraint("Coincident", 17, 2, 14, 1))
sketch3.addConstraint(Sketcher.Constraint("Coincident", 18, 2, 19, 1))
sketch3.addConstraint(Sketcher.Constraint("Coincident", 19, 2, 20, 1))
sketch3.addConstraint(Sketcher.Constraint("Coincident", 20, 2, 21, 1))
sketch3.addConstraint(Sketcher.Constraint("Coincident", 21, 2, 18, 1))
sketch3.addConstraint(Sketcher.Constraint("Parallel", 0, 2))
sketch3.addConstraint(Sketcher.Constraint("Perpendicular", 1, 3))
sketch3.addConstraint(Sketcher.Constraint("Parallel", 2, 4))
sketch3.addConstraint(Sketcher.Constraint("Perpendicular", 3, 5))
sketch3.addConstraint(Sketcher.Constraint("Parallel", 4, 6))
sketch3.addConstraint(Sketcher.Constraint("Perpendicular", 5, 7))
sketch3.addConstraint(Sketcher.Constraint("Parallel", 6, 8))
sketch3.addConstraint(Sketcher.Constraint("Perpendicular", 7, 9))
sketch3.addConstraint(Sketcher.Constraint("Perpendicular", 9, 10))
sketch3.addConstraint(Sketcher.Constraint("Parallel", 8, 11))
sketch3.addConstraint(Sketcher.Constraint("Perpendicular", 10, 12))
sketch3.addConstraint(Sketcher.Constraint("Perpendicular", 12, 13))
sketch3.addConstraint(Sketcher.Constraint("Parallel", 11, 14))
sketch3.addConstraint(Sketcher.Constraint("Parallel", 13, 15))
sketch3.addConstraint(Sketcher.Constraint("Parallel", 14, 16))
sketch3.addConstraint(Sketcher.Constraint("Perpendicular", 15, 17))
sketch3.addConstraint(Sketcher.Constraint("Parallel", 16, 18))
sketch3.addConstraint(Sketcher.Constraint("Perpendicular", 17, 19))
sketch3.addConstraint(Sketcher.Constraint("Parallel", 18, 20))
sketch3.addConstraint(Sketcher.Constraint("Perpendicular", 19, 21))
sketch3.addConstraint(Sketcher.Constraint("Equal", 1, 5))
sketch3.addConstraint(Sketcher.Constraint("Equal", 12, 13))
sketch3.addConstraint(Sketcher.Constraint("Equal", 7, 17))
sketch3.addConstraint(Sketcher.Constraint("Equal", 15, 19))
sketch3.addConstraint(Sketcher.Constraint("Equal", 0, 20))
sketch3.addConstraint(Sketcher.Constraint("Angle", 1, Q("-30.000006 deg")))
sketch3.addConstraint(Sketcher.Constraint("DistanceY", 1, 2, 7, 2, 31.176802))
sketch3.addConstraint(Sketcher.Constraint("DistanceY", 9, 2, 5, 2, 10.672201))
sketch3.addConstraint(Sketcher.Constraint("DistanceY", 9, 2, 10, 2, 3.997198))
sketch3.addConstraint(Sketcher.Constraint("DistanceY", 16, 2, 13, 2, 7.617501))
sketch3.addConstraint(Sketcher.Constraint("DistanceX", 6, 2, 16, 2, 26.839599))
sketch3.addConstraint(Sketcher.Constraint("DistanceX", 16, 2, 18, 2, 11.026599))
sketch3.addConstraint(Sketcher.Constraint("DistanceY", 19, 2, 16, 2, 19.379702))
sketch3.addConstraint(Sketcher.Constraint("Distance", 0, 12.041739))
sketch3.addConstraint(Sketcher.Constraint("Distance", 1, 8.152938))
sketch3.addConstraint(Sketcher.Constraint("Distance", 2, 24.083478))
sketch3.addConstraint(Sketcher.Constraint("Distance", 4, 32.048748))
sketch3.addConstraint(Sketcher.Constraint("Distance", 8, 62.171151))
sketch3.addConstraint(Sketcher.Constraint("Distance", 11, 61.669412))
sketch3.addConstraint(Sketcher.Constraint("Distance", 16, 34.576371))
sketch3.addConstraint(Sketcher.Constraint("DistanceY", 0, 2, -1, 1, 53.412519))
sketch3.addConstraint(Sketcher.Constraint("DistanceX", 3, 2, -1, 1, 57.53955))
sketch3.addConstraint(Sketcher.Constraint("DistanceX", 4, 2, -1, 1, 41.678771))
sketch3.addConstraint(Sketcher.Constraint("DistanceX", 9, 2, -1, 1, 22.133329))
pocket2 = body.newObject("PartDesign::Pocket", "Pocket001")
pocket2.Profile = sketch3
pocket2.Type = "ThroughAll"

sketch4 = body.newObject("Sketcher::SketchObject", "Sketch003")
sketch4.AttachmentSupport = (doc.getObject("XY_Plane"), [""])
sketch4.MapMode = "FlatFace"
sketch4.AttachmentOffset = App.Placement(V(0, 0, 5), App.Rotation())
sketch4.addGeometry(Part.LineSegment(V(-48.069043, 30.395188, 0), V(-40.061292, -5.388208, 0)), False)
sketch4.addGeometry(Part.LineSegment(V(-40.061292, -5.388208, 0), V(-35.630347, 2.286413, 0)), False)
sketch4.addGeometry(Part.LineSegment(V(-35.630347, 2.286413, 0), V(-41.008391, 26.318718, 0)), False)
sketch4.addGeometry(Part.LineSegment(V(-41.008391, 26.318718, 0), V(-48.069043, 30.395188, 0)), False)
sketch4.addGeometry(Part.LineSegment(V(-58.864983, -3.786293, 0), V(-66.256008, 29.24121, 0)), False)
sketch4.addGeometry(Part.LineSegment(V(-66.256008, 29.24121, 0), V(-70.686954, 21.566589, 0)), False)
sketch4.addGeometry(Part.LineSegment(V(-70.686954, 21.566589, 0), V(-65.925634, 0.290177, 0)), False)
sketch4.addGeometry(Part.LineSegment(V(-65.925634, 0.290177, 0), V(-58.864983, -3.786293, 0)), False)
sketch4.addGeometry(Part.LineSegment(V(-33.94774, 22.242248, 0), V(-31.199401, 9.961033, 0)), False)
sketch4.addGeometry(Part.LineSegment(V(-31.199401, 9.961033, 0), V(-26.568564, 17.981878, 0)), False)
sketch4.addGeometry(Part.LineSegment(V(-26.568564, 17.981878, 0), V(-33.94774, 22.242248, 0)), False)
sketch4.addGeometry(Part.LineSegment(V(-44.743681, -11.939232, 0), V(-55.129694, 34.471658, 0)), False)
sketch4.addGeometry(Part.LineSegment(V(-55.129694, 34.471658, 0), V(-61.209578, 37.981881, 0)), False)
sketch4.addGeometry(Part.LineSegment(V(-61.209578, 37.981881, 0), V(-61.825063, 36.91583, 0)), False)
sketch4.addGeometry(Part.LineSegment(V(-61.825063, 36.91583, 0), V(-51.804332, -7.862762, 0)), False)
sketch4.addGeometry(Part.LineSegment(V(-51.804332, -7.862762, 0), V(-44.743681, -11.939232, 0)), False)
sketch4.addGeometry(Part.LineSegment(V(-72.986285, 4.366647, 0), V(-75.117899, 13.891968, 0)), False)
sketch4.addGeometry(Part.LineSegment(V(-75.117899, 13.891968, 0), V(-78.709581, 7.670994, 0)), False)
sketch4.addGeometry(Part.LineSegment(V(-78.709581, 7.670994, 0), V(-72.986285, 4.366647, 0)), False)
sketch4.addConstraint(Sketcher.Constraint("Coincident", 0, 2, 1, 1))
sketch4.addConstraint(Sketcher.Constraint("Coincident", 1, 2, 2, 1))
sketch4.addConstraint(Sketcher.Constraint("Coincident", 2, 2, 3, 1))
sketch4.addConstraint(Sketcher.Constraint("Coincident", 3, 2, 0, 1))
sketch4.addConstraint(Sketcher.Constraint("Coincident", 4, 2, 5, 1))
sketch4.addConstraint(Sketcher.Constraint("Coincident", 5, 2, 6, 1))
sketch4.addConstraint(Sketcher.Constraint("Coincident", 6, 2, 7, 1))
sketch4.addConstraint(Sketcher.Constraint("Coincident", 7, 2, 4, 1))
sketch4.addConstraint(Sketcher.Constraint("Coincident", 8, 2, 9, 1))
sketch4.addConstraint(Sketcher.Constraint("Coincident", 9, 2, 10, 1))
sketch4.addConstraint(Sketcher.Constraint("Coincident", 10, 2, 8, 1))
sketch4.addConstraint(Sketcher.Constraint("Coincident", 11, 2, 12, 1))
sketch4.addConstraint(Sketcher.Constraint("Coincident", 12, 2, 13, 1))
sketch4.addConstraint(Sketcher.Constraint("Coincident", 13, 2, 14, 1))
sketch4.addConstraint(Sketcher.Constraint("Coincident", 14, 2, 15, 1))
sketch4.addConstraint(Sketcher.Constraint("Coincident", 15, 2, 11, 1))
sketch4.addConstraint(Sketcher.Constraint("Coincident", 16, 2, 17, 1))
sketch4.addConstraint(Sketcher.Constraint("Coincident", 17, 2, 18, 1))
sketch4.addConstraint(Sketcher.Constraint("Coincident", 18, 2, 16, 1))
sketch4.addConstraint(Sketcher.Constraint("Parallel", 0, 2))
sketch4.addConstraint(Sketcher.Constraint("Perpendicular", 1, 3))
sketch4.addConstraint(Sketcher.Constraint("Parallel", 2, 4))
sketch4.addConstraint(Sketcher.Constraint("Perpendicular", 3, 5))
sketch4.addConstraint(Sketcher.Constraint("Parallel", 4, 6))
sketch4.addConstraint(Sketcher.Constraint("Perpendicular", 5, 7))
sketch4.addConstraint(Sketcher.Constraint("Parallel", 6, 8))
sketch4.addConstraint(Sketcher.Constraint("Perpendicular", 7, 9))
sketch4.addConstraint(Sketcher.Constraint("Perpendicular", 9, 10))
sketch4.addConstraint(Sketcher.Constraint("Parallel", 8, 11))
sketch4.addConstraint(Sketcher.Constraint("Parallel", 10, 12))
sketch4.addConstraint(Sketcher.Constraint("Perpendicular", 12, 13))
sketch4.addConstraint(Sketcher.Constraint("Parallel", 11, 14))
sketch4.addConstraint(Sketcher.Constraint("Perpendicular", 13, 15))
sketch4.addConstraint(Sketcher.Constraint("Parallel", 14, 16))
sketch4.addConstraint(Sketcher.Constraint("Perpendicular", 15, 17))
sketch4.addConstraint(Sketcher.Constraint("Perpendicular", 17, 18))
sketch4.addConstraint(Sketcher.Constraint("Equal", 1, 5))
sketch4.addConstraint(Sketcher.Constraint("Equal", 7, 15))
sketch4.addConstraint(Sketcher.Constraint("Angle", 1, Q("59.999994 deg")))
sketch4.addConstraint(Sketcher.Constraint("DistanceX", 8, 2, -1, 1, 31.199401))
sketch4.addConstraint(Sketcher.Constraint("DistanceX", 16, 2, -1, 1, 75.117899))
sketch4.addConstraint(Sketcher.Constraint("DistanceX", 2, 2, 0, 2, 0.947099))
sketch4.addConstraint(Sketcher.Constraint("DistanceY", 5, 2, 3, 2, 8.828599))
sketch4.addConstraint(Sketcher.Constraint("Distance", 1, 8.861889))
sketch4.addConstraint(Sketcher.Constraint("Distance", 3, 8.152938))
sketch4.addConstraint(Sketcher.Constraint("Distance", 10, 8.52074))
sketch4.addConstraint(Sketcher.Constraint("Distance", 13, 1.23097))
sketch4.addConstraint(Sketcher.Constraint("DistanceY", 0, 2, -1, 1, 5.388208))
sketch4.addConstraint(Sketcher.Constraint("DistanceX", 2, 2, -1, 1, 41.008391))
sketch4.addConstraint(Sketcher.Constraint("DistanceX", 4, 2, -1, 1, 66.256008))
sketch4.addConstraint(Sketcher.Constraint("DistanceY", -1, 1, 10, 2, 22.242248))
sketch4.addConstraint(Sketcher.Constraint("DistanceY", -1, 1, 12, 2, 37.981881))
sketch4.addConstraint(Sketcher.Constraint("DistanceX", 14, 2, -1, 1, 51.804332))
sketch4.addConstraint(Sketcher.Constraint("DistanceY", -1, 1, 16, 2, 13.891968))
sketch4.addConstraint(Sketcher.Constraint("DistanceX", 17, 2, -1, 1, 78.709581))
sketch4.addConstraint(Sketcher.Constraint("DistanceX", 5, 2, 6, 2, 4.76132))
sketch4.addConstraint(Sketcher.Constraint("DistanceX", 11, 2, 3, 2, 7.060651))
pocket3 = body.newObject("PartDesign::Pocket", "Pocket002")
pocket3.Profile = sketch4
pocket3.Length = 10

sketch5 = body.newObject("Sketcher::SketchObject", "Sketch004")
sketch5.AttachmentSupport = (doc.getObject("XY_Plane"), [""])
sketch5.MapMode = "FlatFace"
sketch5.AttachmentOffset = App.Placement(V(0, 0, 5), App.Rotation())
sketch5.addGeometry(Part.Circle(V(-72.175794, -4.380771, 0), V(0, 0, 1), 1.5), False)
sketch5.addGeometry(Part.Circle(V(-53.162425, -15.358145, 0), V(0, 0, 1), 1.5), False)
sketch5.addConstraint(Sketcher.Constraint("Equal", 0, 1))
sketch5.addConstraint(Sketcher.Constraint("Diameter", 0, 3.0))
sketch5.addConstraint(Sketcher.Constraint("DistanceY", 0, 3, -1, 1, 4.380771))
sketch5.addConstraint(Sketcher.Constraint("DistanceX", 0, 3, 1, 3, 19.013369))
sketch5.addConstraint(Sketcher.Constraint("DistanceX", 0, 3, -1, 1, 72.175794))
sketch5.addConstraint(Sketcher.Constraint("DistanceY", 1, 3, -1, 1, 15.358145))
pocket4 = body.newObject("PartDesign::Pocket", "Pocket003")
pocket4.Profile = sketch5
pocket4.Length = 10

doc.recompute()
